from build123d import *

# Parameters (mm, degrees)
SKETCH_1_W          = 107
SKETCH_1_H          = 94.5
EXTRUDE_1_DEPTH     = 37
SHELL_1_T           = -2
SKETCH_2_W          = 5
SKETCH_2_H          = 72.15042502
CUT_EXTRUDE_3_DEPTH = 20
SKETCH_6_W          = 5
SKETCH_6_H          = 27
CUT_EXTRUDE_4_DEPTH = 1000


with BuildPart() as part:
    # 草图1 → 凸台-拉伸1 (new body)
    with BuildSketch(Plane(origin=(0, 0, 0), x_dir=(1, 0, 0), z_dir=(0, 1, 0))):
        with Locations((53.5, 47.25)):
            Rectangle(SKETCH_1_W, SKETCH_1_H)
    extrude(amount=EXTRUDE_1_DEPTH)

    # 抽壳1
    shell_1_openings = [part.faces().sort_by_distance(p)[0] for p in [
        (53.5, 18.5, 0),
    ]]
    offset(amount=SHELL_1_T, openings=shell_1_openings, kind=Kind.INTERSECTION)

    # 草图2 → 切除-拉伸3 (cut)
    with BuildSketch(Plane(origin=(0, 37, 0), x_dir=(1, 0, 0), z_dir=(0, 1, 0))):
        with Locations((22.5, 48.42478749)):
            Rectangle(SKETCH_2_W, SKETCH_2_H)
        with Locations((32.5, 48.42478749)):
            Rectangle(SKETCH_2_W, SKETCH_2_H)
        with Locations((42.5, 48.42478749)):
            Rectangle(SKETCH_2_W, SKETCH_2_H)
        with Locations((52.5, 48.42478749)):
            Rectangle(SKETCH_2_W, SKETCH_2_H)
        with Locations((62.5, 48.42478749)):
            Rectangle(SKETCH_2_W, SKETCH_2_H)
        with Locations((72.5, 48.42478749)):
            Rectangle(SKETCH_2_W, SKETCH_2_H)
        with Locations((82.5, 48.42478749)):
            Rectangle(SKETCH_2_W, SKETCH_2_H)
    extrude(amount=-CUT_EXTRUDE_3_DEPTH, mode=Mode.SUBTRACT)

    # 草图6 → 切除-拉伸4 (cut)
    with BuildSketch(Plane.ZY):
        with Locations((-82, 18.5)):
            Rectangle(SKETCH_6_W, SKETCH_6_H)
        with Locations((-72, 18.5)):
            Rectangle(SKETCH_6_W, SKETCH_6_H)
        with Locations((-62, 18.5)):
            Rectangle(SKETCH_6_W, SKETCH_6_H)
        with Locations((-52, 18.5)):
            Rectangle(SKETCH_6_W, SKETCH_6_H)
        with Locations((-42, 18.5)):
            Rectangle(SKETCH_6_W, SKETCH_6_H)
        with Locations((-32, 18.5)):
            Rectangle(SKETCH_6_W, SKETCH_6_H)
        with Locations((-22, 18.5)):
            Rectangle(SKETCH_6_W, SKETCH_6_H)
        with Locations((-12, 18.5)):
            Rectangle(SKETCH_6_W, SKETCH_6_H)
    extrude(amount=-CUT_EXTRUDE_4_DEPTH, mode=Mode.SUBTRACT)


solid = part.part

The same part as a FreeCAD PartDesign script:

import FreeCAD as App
import Part
import Sketcher
from FreeCAD import Vector
Q = App.Units.Quantity


def faces_at(feature, points):
    """Names of the faces that lie closest to the given points."""
    faces = feature.Shape.Faces
    near = lambda p: min(range(len(faces)), key=lambda i: faces[i].distToShape(Part.Vertex(*p))[0])
    return sorted({f"Face{near(p) + 1}" for p in points})


def add_polygon(sketch, points):
    """Adds a closed chain of lines whose ends are joined by coincident constraints."""
    first, n = sketch.GeometryCount, len(points)
    for a, b in zip(points, points[1:] + points[:1]):
        sketch.addGeometry(Part.LineSegment(App.Vector(*a, 0), App.Vector(*b, 0)), False)
    for i in range(n):
        sketch.addConstraint(Sketcher.Constraint("Coincident", first + i, 2, first + (i + 1) % n, 1))

doc = App.newDocument("Part")
params = doc.addObject("Spreadsheet::Sheet", "Params")
for row, (alias, value) in enumerate([
    ("sketch1_width", "107 mm"),
    ("sketch1_height", "94.5 mm"),
    ("pad1_length", "37 mm"),
    ("thickness_wall", "2 mm"),
    ("sketch2_width", "5 mm"),
    ("pocket1_length", "20 mm"),
    ("sketch3_width", "27 mm"),
    ("sketch3_height", "5 mm"),
    ("pocket2_length", "1000 mm"),
], start=1):
    params.set(f"A{row}", alias)
    params.set(f"B{row}", "=" + value)
    params.setAlias(f"B{row}", alias)

body = doc.addObject("PartDesign::Body", "Body")

# Sketch on XZ plane
sketch1 = body.newObject("Sketcher::SketchObject", "Sketch")
sketch1.AttachmentSupport = (doc.getObject("XZ_Plane"), [""])
sketch1.MapMode = "FlatFace"
add_polygon(sketch1, [(0, -94), (0, 0), (107, 0), (107, -94)])  # lines 0-3
sketch1.addConstraint([
    Sketcher.Constraint("Vertical", 0),
    Sketcher.Constraint("Horizontal", 1),
    Sketcher.Constraint("Vertical", 2),
    Sketcher.Constraint("Horizontal", 3),
    Sketcher.Constraint("Coincident", 0, 2, -1, 1),
    Sketcher.Constraint("DistanceX", 1, 1, 1, 2, Q("107 mm")),
    Sketcher.Constraint("DistanceY", 0, 1, 0, 2, Q("94.5 mm")),
])
sketch1.setExpression("Constraints[9]", "Params.sketch1_width")
sketch1.setExpression("Constraints[10]", "Params.sketch1_height")
pad1 = body.newObject("PartDesign::Pad", "Pad")
pad1.Profile = sketch1
pad1.setExpression("Length", "Params.pad1_length")
pad1.Reversed = True
doc.recompute()

thickness = body.newObject("PartDesign::Thickness", "Thickness")
thickness.Base = (pad1, faces_at(pad1, [(53.5, 18.5, 0)]))
thickness.setExpression("Value", "Params.thickness_wall")
thickness.Reversed = True
thickness.Join = "Intersection"

# Sketch on XZ plane
sketch2 = body.newObject("Sketcher::SketchObject", "Sketch001")
sketch2.AttachmentSupport = (doc.getObject("XZ_Plane"), [""])
sketch2.MapMode = "FlatFace"
sketch2.AttachmentOffset = App.Placement(Vector(0, 0, -37), App.Rotation())
add_polygon(sketch2, [(20, -84), (20, -12), (25, -12), (25, -84)])  # lines 0-3
add_polygon(sketch2, [(30, -84), (30, -12), (35, -12), (35, -84)])  # lines 4-7
add_polygon(sketch2, [(40, -84), (40, -12), (45, -12), (45, -84)])  # lines 8-11
add_polygon(sketch2, [(50, -84), (50, -12), (55, -12), (55, -84)])  # lines 12-15
add_polygon(sketch2, [(60, -84), (60, -12), (65, -12), (65, -84)])  # lines 16-19
add_polygon(sketch2, [(70, -84), (70, -12), (75, -12), (75, -84)])  # lines 20-23
add_polygon(sketch2, [(80, -84), (80, -12), (85, -12), (85, -84)])  # lines 24-27
sketch2.addConstraint([
    Sketcher.Constraint("Vertical", 0),
    Sketcher.Constraint("Horizontal", 1),
    Sketcher.Constraint("Vertical", 2),
    Sketcher.Constraint("Horizontal", 3),
    Sketcher.Constraint("Vertical", 4),
    Sketcher.Constraint("Horizontal", 5),
    Sketcher.Constraint("Vertical", 6),
    Sketcher.Constraint("Horizontal", 7),
    Sketcher.Constraint("Vertical", 8),
    Sketcher.Constraint("Horizontal", 9),
    Sketcher.Constraint("Vertical", 10),
    Sketcher.Constraint("Horizontal", 11),
    Sketcher.Constraint("Vertical", 12),
    Sketcher.Constraint("Horizontal", 13),
    Sketcher.Constraint("Vertical", 14),
    Sketcher.Constraint("Horizontal", 15),
    Sketcher.Constraint("Vertical", 16),
    Sketcher.Constraint("Horizontal", 17),
    Sketcher.Constraint("Vertical", 18),
    Sketcher.Constraint("Horizontal", 19),
    Sketcher.Constraint("Vertical", 20),
    Sketcher.Constraint("Horizontal", 21),
    Sketcher.Constraint("Vertical", 22),
    Sketcher.Constraint("Horizontal", 23),
    Sketcher.Constraint("Vertical", 24),
    Sketcher.Constraint("Horizontal", 25),
    Sketcher.Constraint("Vertical", 26),
    Sketcher.Constraint("Horizontal", 27),
    Sketcher.Constraint("Horizontal", 1, 2, 4, 2),
    Sketcher.Constraint("Horizontal", 3, 2, 6, 2),
    Sketcher.Constraint("Horizontal", 5, 2, 8, 2),
    Sketcher.Constraint("Horizontal", 7, 2, 10, 2),
    Sketcher.Constraint("Horizontal", 9, 2, 12, 2),
    Sketcher.Constraint("Horizontal", 11, 2, 14, 2),
    Sketcher.Constraint("Horizontal", 13, 2, 16, 2),
    Sketcher.Constraint("Horizontal", 15, 2, 18, 2),
    Sketcher.Constraint("Horizontal", 17, 2, 20, 2),
    Sketcher.Constraint("Horizontal", 19, 2, 22, 2),
    Sketcher.Constraint("Horizontal", 21, 2, 24, 2),
    Sketcher.Constraint("Horizontal", 23, 2, 26, 2),
    Sketcher.Constraint("Equal", 3, 5),
    Sketcher.Constraint("Equal", 7, 9),
    Sketcher.Constraint("Equal", 11, 13),
    Sketcher.Constraint("Equal", 15, 17),
    Sketcher.Constraint("Equal", 19, 21),
    Sketcher.Constraint("Equal", 23, 25),
    Sketcher.Constraint("DistanceX", 1, 1, 1, 2, Q("5 mm")),
    Sketcher.Constraint("DistanceX", -1, 1, 0, 2, Q("20 mm")),
    Sketcher.Constraint("DistanceX", -1, 1, 4, 2, Q("30 mm")),
    Sketcher.Constraint("DistanceX", -1, 1, 8, 2, Q("40 mm")),
    Sketcher.Constraint("DistanceX", -1, 1, 12, 2, Q("50 mm")),
    Sketcher.Constraint("DistanceX", -1, 1, 16, 2, Q("60 mm")),
    Sketcher.Constraint("DistanceX", -1, 1, 20, 2, Q("70 mm")),
    Sketcher.Constraint("DistanceX", -1, 1, 24, 2, Q("80 mm")),
    Sketcher.Constraint("DistanceY", 2, 2, -1, 1, Q("84.5 mm")),
    Sketcher.Constraint("DistanceY", 0, 1, 0, 2, Q("72.150425 mm")),
])
sketch2.setExpression("Constraints[74]", "Params.sketch2_width")
pocket1 = body.newObject("PartDesign::Pocket", "Pocket")
pocket1.Profile = sketch2
pocket1.setExpression("Length", "Params.pocket1_length")
pocket1.Reversed = True

# Sketch on YZ plane
sketch3 = body.newObject("Sketcher::SketchObject", "Sketch002")
sketch3.AttachmentSupport = (doc.getObject("YZ_Plane"), [""])
sketch3.MapMode = "FlatFace"
add_polygon(sketch3, [(32, -84), (5, -84), (5, -80), (32, -80)])  # lines 0-3
add_polygon(sketch3, [(32, -74), (5, -74), (5, -70), (32, -70)])  # lines 4-7
add_polygon(sketch3, [(32, -64), (5, -64), (5, -60), (32, -60)])  # lines 8-11
add_polygon(sketch3, [(32, -54), (5, -54), (5, -50), (32, -50)])  # lines 12-15
add_polygon(sketch3, [(32, -44), (5, -44), (5, -40), (32, -40)])  # lines 16-19
add_polygon(sketch3, [(32, -34), (5, -34), (5, -30), (32, -30)])  # lines 20-23
add_polygon(sketch3, [(32, -24), (5, -24), (5, -20), (32, -20)])  # lines 24-27
add_polygon(sketch3, [(32, -14), (5, -14), (5, -10), (32, -10)])  # lines 28-31
sketch3.addConstraint([
    Sketcher.Constraint("Horizontal", 0),
    Sketcher.Constraint("Vertical", 1),
    Sketcher.Constraint("Horizontal", 2),
    Sketcher.Constraint("Vertical", 3),
    Sketcher.Constraint("Horizontal", 4),
    Sketcher.Constraint("Vertical", 5),
    Sketcher.Constraint("Horizontal", 6),
    Sketcher.Constraint("Vertical", 7),
    Sketcher.Constraint("Horizontal", 8),
    Sketcher.Constraint("Vertical", 9),
    Sketcher.Constraint("Horizontal", 10),
    Sketcher.Constraint("Vertical", 11),
    Sketcher.Constraint("Horizontal", 12),
    Sketcher.Constraint("Vertical", 13),
    Sketcher.Constraint("Horizontal", 14),
    Sketcher.Constraint("Vertical", 15),
    Sketcher.Constraint("Horizontal", 16),
    Sketcher.Constraint("Vertical", 17),
    Sketcher.Constraint("Horizontal", 18),
    Sketcher.Constraint("Vertical", 19),
    Sketcher.Constraint("Horizontal", 20),
    Sketcher.Constraint("Vertical", 21),
    Sketcher.Constraint("Horizontal", 22),
    Sketcher.Constraint("Vertical", 23),
    Sketcher.Constraint("Horizontal", 24),
    Sketcher.Constraint("Vertical", 25),
    Sketcher.Constraint("Horizontal", 26),
    Sketcher.Constraint("Vertical", 27),
    Sketcher.Constraint("Horizontal", 28),
    Sketcher.Constraint("Vertical", 29),
    Sketcher.Constraint("Horizontal", 30),
    Sketcher.Constraint("Vertical", 31),
    Sketcher.Constraint("Vertical", 1, 2, 4, 2),
    Sketcher.Constraint("Vertical", 3, 2, 6, 2),
    Sketcher.Constraint("Vertical", 5, 2, 8, 2),
    Sketcher.Constraint("Vertical", 7, 2, 10, 2),
    Sketcher.Constraint("Vertical", 9, 2, 12, 2),
    Sketcher.Constraint("Vertical", 11, 2, 14, 2),
    Sketcher.Constraint("Vertical", 13, 2, 16, 2),
    Sketcher.Constraint("Vertical", 15, 2, 18, 2),
    Sketcher.Constraint("Vertical", 17, 2, 20, 2),
    Sketcher.Constraint("Vertical", 19, 2, 22, 2),
    Sketcher.Constraint("Vertical", 21, 2, 24, 2),
    Sketcher.Constraint("Vertical", 23, 2, 26, 2),
    Sketcher.Constraint("Vertical", 25, 2, 28, 2),
    Sketcher.Constraint("Vertical", 27, 2, 30, 2),
    Sketcher.Constraint("Equal", 3, 5),
    Sketcher.Constraint("Equal", 7, 9),
    Sketcher.Constraint("Equal", 11, 13),
    Sketcher.Constraint("Equal", 15, 17),
    Sketcher.Constraint("Equal", 19, 21),
    Sketcher.Constraint("Equal", 23, 25),
    Sketcher.Constraint("Equal", 27, 29),
    Sketcher.Constraint("DistanceX", 0, 2, 0, 1, Q("27 mm")),
    Sketcher.Constraint("DistanceY", 1, 1, 1, 2, Q("5 mm")),
    Sketcher.Constraint("DistanceX", -1, 1, 0, 2, Q("5 mm")),
    Sketcher.Constraint("DistanceY", 1, 2, 4, 2, Q("5 mm")),
    Sketcher.Constraint("DistanceY", 5, 2, 8, 2, Q("5 mm")),
    Sketcher.Constraint("DistanceY", 9, 2, 12, 2, Q("5 mm")),
    Sketcher.Constraint("DistanceY", 13, 2, 16, 2, Q("5 mm")),
    Sketcher.Constraint("DistanceY", 17, 2, 20, 2, Q("5 mm")),
    Sketcher.Constraint("DistanceY", 21, 2, 24, 2, Q("5 mm")),
    Sketcher.Constraint("DistanceY", 25, 2, 28, 2, Q("5 mm")),
    Sketcher.Constraint("DistanceY", 0, 2, -1, 1, Q("84.5 mm")),
])
sketch3.setExpression("Constraints[85]", "Params.sketch3_width")
sketch3.setExpression("Constraints[86]", "Params.sketch3_height")
pocket2 = body.newObject("PartDesign::Pocket", "Pocket001")
pocket2.Profile = sketch3
pocket2.setExpression("Length", "Params.pocket2_length")
pocket2.Reversed = True

doc.recompute()
